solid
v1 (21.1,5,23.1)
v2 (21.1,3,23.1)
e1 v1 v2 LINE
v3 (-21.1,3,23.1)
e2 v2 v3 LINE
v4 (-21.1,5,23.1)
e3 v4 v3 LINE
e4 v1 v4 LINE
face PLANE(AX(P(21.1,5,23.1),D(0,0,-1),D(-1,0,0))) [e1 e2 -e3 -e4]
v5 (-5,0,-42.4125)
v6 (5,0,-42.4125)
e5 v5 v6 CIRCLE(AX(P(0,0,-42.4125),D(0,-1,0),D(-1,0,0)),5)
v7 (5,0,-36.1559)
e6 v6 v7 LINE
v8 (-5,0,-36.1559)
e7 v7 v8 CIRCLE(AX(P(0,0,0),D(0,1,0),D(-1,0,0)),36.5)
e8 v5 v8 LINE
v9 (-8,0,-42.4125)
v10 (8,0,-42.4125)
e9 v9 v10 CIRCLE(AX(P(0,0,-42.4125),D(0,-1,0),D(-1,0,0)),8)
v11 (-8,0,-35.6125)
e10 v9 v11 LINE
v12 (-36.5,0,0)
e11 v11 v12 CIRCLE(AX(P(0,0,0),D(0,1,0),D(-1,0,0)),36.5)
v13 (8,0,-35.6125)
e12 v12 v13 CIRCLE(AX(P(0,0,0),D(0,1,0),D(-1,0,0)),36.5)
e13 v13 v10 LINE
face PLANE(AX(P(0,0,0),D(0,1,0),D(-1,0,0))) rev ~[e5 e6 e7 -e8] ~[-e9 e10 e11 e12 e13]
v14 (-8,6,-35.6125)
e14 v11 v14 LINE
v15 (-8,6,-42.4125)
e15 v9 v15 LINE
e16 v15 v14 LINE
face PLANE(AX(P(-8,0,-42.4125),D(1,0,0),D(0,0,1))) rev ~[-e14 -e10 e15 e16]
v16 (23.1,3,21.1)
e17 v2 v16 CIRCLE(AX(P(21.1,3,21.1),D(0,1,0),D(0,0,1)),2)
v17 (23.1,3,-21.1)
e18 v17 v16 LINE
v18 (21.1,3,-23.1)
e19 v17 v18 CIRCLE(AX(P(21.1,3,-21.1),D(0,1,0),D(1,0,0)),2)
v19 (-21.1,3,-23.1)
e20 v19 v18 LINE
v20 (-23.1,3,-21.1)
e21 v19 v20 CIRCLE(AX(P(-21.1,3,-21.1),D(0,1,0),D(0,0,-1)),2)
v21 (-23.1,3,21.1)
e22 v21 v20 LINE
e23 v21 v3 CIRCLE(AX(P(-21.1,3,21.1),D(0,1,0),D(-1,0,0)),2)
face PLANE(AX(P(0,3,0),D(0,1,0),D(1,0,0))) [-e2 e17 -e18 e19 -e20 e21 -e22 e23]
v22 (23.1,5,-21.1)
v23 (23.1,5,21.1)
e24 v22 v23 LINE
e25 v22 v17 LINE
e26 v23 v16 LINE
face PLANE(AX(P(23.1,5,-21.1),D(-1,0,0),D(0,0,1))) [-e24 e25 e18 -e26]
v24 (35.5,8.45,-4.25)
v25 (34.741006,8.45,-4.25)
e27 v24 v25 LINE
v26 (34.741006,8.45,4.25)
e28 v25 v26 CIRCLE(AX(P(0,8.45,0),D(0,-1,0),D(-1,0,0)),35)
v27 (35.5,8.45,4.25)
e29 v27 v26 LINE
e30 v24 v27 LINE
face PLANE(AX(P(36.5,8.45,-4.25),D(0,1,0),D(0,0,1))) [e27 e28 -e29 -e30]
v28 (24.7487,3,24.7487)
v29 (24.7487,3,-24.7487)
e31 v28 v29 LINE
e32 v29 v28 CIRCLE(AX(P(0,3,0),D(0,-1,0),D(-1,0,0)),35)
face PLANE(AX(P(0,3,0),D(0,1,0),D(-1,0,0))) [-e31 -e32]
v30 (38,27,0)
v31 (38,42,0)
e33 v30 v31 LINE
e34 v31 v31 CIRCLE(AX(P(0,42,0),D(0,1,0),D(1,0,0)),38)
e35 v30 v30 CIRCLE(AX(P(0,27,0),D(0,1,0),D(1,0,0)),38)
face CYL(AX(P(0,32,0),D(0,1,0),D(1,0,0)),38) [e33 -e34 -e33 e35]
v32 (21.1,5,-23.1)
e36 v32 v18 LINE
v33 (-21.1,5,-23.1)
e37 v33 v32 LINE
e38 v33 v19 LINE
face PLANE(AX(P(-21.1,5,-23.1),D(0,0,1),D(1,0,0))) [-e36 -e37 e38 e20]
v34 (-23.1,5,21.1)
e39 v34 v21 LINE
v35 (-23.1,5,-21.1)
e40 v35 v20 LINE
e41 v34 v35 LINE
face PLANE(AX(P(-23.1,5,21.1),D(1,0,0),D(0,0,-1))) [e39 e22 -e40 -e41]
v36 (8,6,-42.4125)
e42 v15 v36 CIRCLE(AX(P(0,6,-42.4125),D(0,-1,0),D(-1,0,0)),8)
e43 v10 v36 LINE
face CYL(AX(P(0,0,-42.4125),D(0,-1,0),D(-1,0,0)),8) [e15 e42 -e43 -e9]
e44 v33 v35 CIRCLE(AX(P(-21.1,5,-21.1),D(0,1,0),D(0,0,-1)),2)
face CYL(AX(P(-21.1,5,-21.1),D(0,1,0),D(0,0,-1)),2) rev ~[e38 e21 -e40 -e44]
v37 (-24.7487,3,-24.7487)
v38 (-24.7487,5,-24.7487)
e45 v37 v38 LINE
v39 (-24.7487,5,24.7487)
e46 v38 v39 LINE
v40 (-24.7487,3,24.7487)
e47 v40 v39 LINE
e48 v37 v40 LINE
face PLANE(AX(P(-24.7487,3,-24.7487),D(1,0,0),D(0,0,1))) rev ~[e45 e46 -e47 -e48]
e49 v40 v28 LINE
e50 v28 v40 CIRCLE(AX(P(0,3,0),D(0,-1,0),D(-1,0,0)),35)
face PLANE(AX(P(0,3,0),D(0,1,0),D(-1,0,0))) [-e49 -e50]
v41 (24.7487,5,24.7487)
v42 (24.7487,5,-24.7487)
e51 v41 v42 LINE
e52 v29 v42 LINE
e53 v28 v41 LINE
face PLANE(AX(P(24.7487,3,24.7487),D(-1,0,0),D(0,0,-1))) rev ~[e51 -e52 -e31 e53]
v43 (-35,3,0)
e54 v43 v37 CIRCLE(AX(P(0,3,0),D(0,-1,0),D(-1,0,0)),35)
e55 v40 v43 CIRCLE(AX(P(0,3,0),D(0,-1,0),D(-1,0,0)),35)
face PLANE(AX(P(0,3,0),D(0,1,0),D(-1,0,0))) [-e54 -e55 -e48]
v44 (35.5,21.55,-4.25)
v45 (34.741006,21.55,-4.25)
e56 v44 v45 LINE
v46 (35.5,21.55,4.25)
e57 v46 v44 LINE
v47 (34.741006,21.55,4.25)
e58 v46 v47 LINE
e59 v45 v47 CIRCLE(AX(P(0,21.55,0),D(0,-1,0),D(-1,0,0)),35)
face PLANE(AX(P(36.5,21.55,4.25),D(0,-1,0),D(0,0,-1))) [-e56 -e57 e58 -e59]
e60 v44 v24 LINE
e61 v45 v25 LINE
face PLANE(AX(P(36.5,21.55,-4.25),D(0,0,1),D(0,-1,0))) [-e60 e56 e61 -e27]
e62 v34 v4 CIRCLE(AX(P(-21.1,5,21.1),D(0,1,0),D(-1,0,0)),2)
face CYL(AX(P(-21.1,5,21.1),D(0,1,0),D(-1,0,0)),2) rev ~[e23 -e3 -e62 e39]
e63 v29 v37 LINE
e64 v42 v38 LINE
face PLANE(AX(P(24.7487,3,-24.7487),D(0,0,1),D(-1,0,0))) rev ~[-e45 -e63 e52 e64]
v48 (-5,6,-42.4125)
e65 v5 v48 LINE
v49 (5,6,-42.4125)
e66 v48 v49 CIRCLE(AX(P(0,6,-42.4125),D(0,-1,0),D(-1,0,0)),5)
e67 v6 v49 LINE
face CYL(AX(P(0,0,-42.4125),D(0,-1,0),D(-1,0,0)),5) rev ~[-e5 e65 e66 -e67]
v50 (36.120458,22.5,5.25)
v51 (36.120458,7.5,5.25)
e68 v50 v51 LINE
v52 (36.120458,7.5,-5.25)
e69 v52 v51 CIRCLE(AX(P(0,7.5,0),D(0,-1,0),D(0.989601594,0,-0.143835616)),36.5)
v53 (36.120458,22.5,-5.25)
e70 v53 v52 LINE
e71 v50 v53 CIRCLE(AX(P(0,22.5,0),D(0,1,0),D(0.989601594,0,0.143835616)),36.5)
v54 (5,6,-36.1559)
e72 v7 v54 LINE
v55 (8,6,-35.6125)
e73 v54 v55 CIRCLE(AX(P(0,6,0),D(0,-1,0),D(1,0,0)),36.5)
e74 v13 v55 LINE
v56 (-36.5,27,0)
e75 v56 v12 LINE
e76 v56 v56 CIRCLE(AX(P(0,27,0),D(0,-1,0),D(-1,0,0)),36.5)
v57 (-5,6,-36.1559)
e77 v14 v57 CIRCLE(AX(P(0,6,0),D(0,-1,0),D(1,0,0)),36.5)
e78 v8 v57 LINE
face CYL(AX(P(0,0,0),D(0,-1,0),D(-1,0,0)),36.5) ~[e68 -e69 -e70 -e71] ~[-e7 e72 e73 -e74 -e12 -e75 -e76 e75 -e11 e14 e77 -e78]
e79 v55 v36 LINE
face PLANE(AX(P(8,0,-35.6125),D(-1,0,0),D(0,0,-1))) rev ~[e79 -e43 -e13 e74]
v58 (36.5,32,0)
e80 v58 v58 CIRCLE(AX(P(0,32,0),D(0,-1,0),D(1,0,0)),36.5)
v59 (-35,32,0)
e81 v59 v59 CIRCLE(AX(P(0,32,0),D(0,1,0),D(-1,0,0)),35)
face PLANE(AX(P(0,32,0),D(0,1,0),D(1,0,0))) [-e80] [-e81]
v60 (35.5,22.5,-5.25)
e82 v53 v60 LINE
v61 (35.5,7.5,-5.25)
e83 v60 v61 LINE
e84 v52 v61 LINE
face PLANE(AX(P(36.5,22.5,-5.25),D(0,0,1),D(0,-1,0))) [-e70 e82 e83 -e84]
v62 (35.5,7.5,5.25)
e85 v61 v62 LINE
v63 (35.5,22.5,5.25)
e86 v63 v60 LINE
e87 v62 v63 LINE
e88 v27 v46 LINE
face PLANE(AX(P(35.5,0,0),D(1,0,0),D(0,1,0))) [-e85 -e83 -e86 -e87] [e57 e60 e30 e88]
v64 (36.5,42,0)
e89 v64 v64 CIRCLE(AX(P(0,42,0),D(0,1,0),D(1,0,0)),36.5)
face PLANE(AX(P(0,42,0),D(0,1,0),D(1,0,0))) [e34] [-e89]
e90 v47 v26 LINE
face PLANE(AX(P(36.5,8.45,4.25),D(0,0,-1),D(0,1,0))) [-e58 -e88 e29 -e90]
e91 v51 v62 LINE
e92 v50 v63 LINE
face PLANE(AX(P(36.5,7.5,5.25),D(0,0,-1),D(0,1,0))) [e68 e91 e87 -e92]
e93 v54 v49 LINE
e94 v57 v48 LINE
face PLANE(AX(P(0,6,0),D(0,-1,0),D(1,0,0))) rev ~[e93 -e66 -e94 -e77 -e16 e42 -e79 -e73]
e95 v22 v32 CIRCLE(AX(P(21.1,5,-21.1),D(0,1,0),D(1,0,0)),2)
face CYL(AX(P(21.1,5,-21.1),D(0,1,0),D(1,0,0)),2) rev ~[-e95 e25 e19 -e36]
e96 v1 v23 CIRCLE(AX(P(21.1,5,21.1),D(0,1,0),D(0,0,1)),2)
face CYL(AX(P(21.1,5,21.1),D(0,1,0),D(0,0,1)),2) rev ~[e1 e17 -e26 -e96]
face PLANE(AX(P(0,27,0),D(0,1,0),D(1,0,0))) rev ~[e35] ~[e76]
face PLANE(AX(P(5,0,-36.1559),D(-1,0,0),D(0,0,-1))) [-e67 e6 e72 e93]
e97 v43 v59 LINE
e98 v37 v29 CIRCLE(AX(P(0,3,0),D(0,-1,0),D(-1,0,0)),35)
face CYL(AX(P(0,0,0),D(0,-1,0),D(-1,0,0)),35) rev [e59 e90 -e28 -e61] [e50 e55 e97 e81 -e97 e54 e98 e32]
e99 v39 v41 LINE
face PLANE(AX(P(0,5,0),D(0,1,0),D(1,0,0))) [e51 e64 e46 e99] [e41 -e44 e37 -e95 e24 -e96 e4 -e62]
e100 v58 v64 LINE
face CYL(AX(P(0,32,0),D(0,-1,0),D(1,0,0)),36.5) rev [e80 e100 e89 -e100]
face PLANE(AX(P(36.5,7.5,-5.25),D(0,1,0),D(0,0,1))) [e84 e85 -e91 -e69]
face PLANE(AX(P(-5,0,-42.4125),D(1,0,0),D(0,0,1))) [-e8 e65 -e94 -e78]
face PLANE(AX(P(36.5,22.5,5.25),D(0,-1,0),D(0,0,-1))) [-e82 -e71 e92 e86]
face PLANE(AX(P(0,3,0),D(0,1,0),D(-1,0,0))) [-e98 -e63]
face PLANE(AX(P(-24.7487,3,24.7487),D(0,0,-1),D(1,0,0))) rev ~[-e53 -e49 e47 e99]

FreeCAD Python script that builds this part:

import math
import FreeCAD as App
import Part
import Sketcher
from FreeCAD import Vector


def add_polygon(sketch, points):
    """Adds a closed chain of lines whose ends are joined by coincident constraints."""
    first, n = sketch.GeometryCount, len(points)
    for a, b in zip(points, points[1:] + points[:1]):
        sketch.addGeometry(Part.LineSegment(App.Vector(*a, 0), App.Vector(*b, 0)), False)
    for i in range(n):
        sketch.addConstraint(Sketcher.Constraint("Coincident", first + i, 2, first + (i + 1) % n, 1))

doc = App.newDocument("Part")
body = doc.addObject("PartDesign::Body", "Body")

sketch1 = doc.addObject("Sketcher::SketchObject", "Sketch")
body.addObject(sketch1)
sketch1.AttachmentSupport = (doc.XZ_Plane, [""])
sketch1.MapMode = "FlatFace"
sketch1.addGeometry(Part.Circle(Vector(0, 0, 0), Vector(0, 0, 1), 36), False)
sketch1.addConstraint(Sketcher.Constraint("Coincident", 0, 3, -1, 1))
sketch1.addConstraint(Sketcher.Constraint("Diameter", 0, 73.0))
pad1 = doc.addObject("PartDesign::Pad", "Pad")
body.addObject(pad1)
pad1.Profile = sketch1
pad1.Length = 3
pad1.Reversed = True

sketch2 = doc.addObject("Sketcher::SketchObject", "Sketch001")
body.addObject(sketch2)
sketch2.AttachmentSupport = (doc.XZ_Plane, [""])
sketch2.MapMode = "FlatFace"
sketch2.addGeometry(Part.Circle(Vector(0, 0, 0), Vector(0, 0, 1), 36), False)
sketch2.addGeometry(Part.Circle(Vector(0, 0, 0), Vector(0, 0, 1), 35), False)
sketch2.addConstraint(Sketcher.Constraint("Coincident", 0, 3, -1, 1))
sketch2.addConstraint(Sketcher.Constraint("Coincident", 1, 3, -1, 1))
sketch2.addConstraint(Sketcher.Constraint("Diameter", 0, 73.0))
sketch2.addConstraint(Sketcher.Constraint("Diameter", 1, 70.0))
pad2 = doc.addObject("PartDesign::Pad", "Pad001")
body.addObject(pad2)
pad2.Profile = sketch2
pad2.Length = 120
pad2.Reversed = True

sketch3 = doc.addObject("Sketcher::SketchObject", "Sketch002")
body.addObject(sketch3)
sketch3.AttachmentSupport = (doc.XZ_Plane, [""])
sketch3.MapMode = "FlatFace"
sketch3.AttachmentOffset = App.Placement(Vector(0, 0, -3), App.Rotation())
add_polygon(sketch3, [(25, 25), (25, -25), (-25, -25), (-25, 25)])
sketch3.addConstraint(Sketcher.Constraint("Vertical", 0))
sketch3.addConstraint(Sketcher.Constraint("Horizontal", 1))
sketch3.addConstraint(Sketcher.Constraint("Vertical", 2))
sketch3.addConstraint(Sketcher.Constraint("Horizontal", 3))
sketch3.addConstraint(Sketcher.Constraint("Symmetric", 0, 2, 2, 2, -1, 1))
sketch3.addConstraint(Sketcher.Constraint("Equal", 3, 0))
sketch3.addConstraint(Sketcher.Constraint("DistanceX", 1, 2, 1, 1, 49.4974))
pad3 = doc.addObject("PartDesign::Pad", "Pad002")
body.addObject(pad3)
pad3.Profile = sketch3
pad3.Length = 2
pad3.Reversed = True

sketch4 = doc.addObject("Sketcher::SketchObject", "Sketch003")
body.addObject(sketch4)
sketch4.AttachmentSupport = (doc.XZ_Plane, [""])
sketch4.MapMode = "FlatFace"
sketch4.AttachmentOffset = App.Placement(Vector(0, 0, -5), App.Rotation())
sketch4.addGeometry(Part.LineSegment(Vector(-21.1, 23.1, 0), Vector(21.1, 23.1, 0)), False)
sketch4.addGeometry(Part.ArcOfCircle(Part.Circle(Vector(21.1, 21.1, 0), Vector(0, 0, 1), 2), math.radians(0), math.radians(90)), False)
sketch4.addGeometry(Part.LineSegment(Vector(23.1, 21.1, 0), Vector(23.1, -21.1, 0)), False)
sketch4.addGeometry(Part.ArcOfCircle(Part.Circle(Vector(21.1, -21.1, 0), Vector(0, 0, 1), 2), math.radians(-90), math.radians(0)), False)
sketch4.addGeometry(Part.LineSegment(Vector(21.1, -23.1, 0), Vector(-21.1, -23.1, 0)), False)
sketch4.addGeometry(Part.ArcOfCircle(Part.Circle(Vector(-21.1, -21.1, 0), Vector(0, 0, 1), 2), math.radians(180), math.radians(270)), False)
sketch4.addGeometry(Part.LineSegment(Vector(-23.1, -21.1, 0), Vector(-23.1, 21.1, 0)), False)
sketch4.addGeometry(Part.ArcOfCircle(Part.Circle(Vector(-21.1, 21.1, 0), Vector(0, 0, 1), 2), math.radians(90), math.radians(180)), False)
sketch4.addConstraint(Sketcher.Constraint("Tangent", 0, 2, 1, 2))
sketch4.addConstraint(Sketcher.Constraint("Tangent", 1, 1, 2, 1))
sketch4.addConstraint(Sketcher.Constraint("Tangent", 2, 2, 3, 2))
sketch4.addConstraint(Sketcher.Constraint("Tangent", 3, 1, 4, 1))
sketch4.addConstraint(Sketcher.Constraint("Tangent", 4, 2, 5, 2))
sketch4.addConstraint(Sketcher.Constraint("Tangent", 5, 1, 6, 1))
sketch4.addConstraint(Sketcher.Constraint("Tangent", 6, 2, 7, 2))
sketch4.addConstraint(Sketcher.Constraint("Tangent", 7, 1, 0, 1))
sketch4.addConstraint(Sketcher.Constraint("Horizontal", 0))
sketch4.addConstraint(Sketcher.Constraint("Vertical", 2))
sketch4.addConstraint(Sketcher.Constraint("Horizontal", 4))
sketch4.addConstraint(Sketcher.Constraint("Vertical", 6))
sketch4.addConstraint(Sketcher.Constraint("Equal", 1, 3))
sketch4.addConstraint(Sketcher.Constraint("Equal", 3, 5))
sketch4.addConstraint(Sketcher.Constraint("Equal", 5, 7))
sketch4.addConstraint(Sketcher.Constraint("Symmetric", 1, 3, 5, 3, -1, 1))
sketch4.addConstraint(Sketcher.Constraint("Equal", 4, 2))
sketch4.addConstraint(Sketcher.Constraint("Radius", 1, 2.0))
sketch4.addConstraint(Sketcher.Constraint("DistanceX", 0, 1, 0, 2, 42.2))
pocket1 = doc.addObject("PartDesign::Pocket", "Pocket")
body.addObject(pocket1)
pocket1.Profile = sketch4
pocket1.Length = 2
pocket1.Reversed = True

sketch5 = doc.addObject("Sketcher::SketchObject", "Sketch004")
body.addObject(sketch5)
sketch5.AttachmentSupport = (doc.YZ_Plane, [""])
sketch5.MapMode = "FlatFace"
sketch5.addGeometry(Part.Circle(Vector(120, -27, 0), Vector(0, 0, 1), 9), False)
sketch5.addConstraint(Sketcher.Constraint("Diameter", 0, 18.0))
sketch5.addConstraint(Sketcher.Constraint("DistanceX", -1, 1, 0, 3, 120.0))
sketch5.addConstraint(Sketcher.Constraint("DistanceY", 0, 3, -1, 1, 27.0))
pocket2 = doc.addObject("PartDesign::Pocket", "Pocket001")
body.addObject(pocket2)
pocket2.Profile = sketch5
pocket2.Type = "ThroughAll"
pocket2.Reversed = True

sketch6 = doc.addObject("Sketcher::SketchObject", "Sketch005")
body.addObject(sketch6)
sketch6.AttachmentSupport = (doc.XZ_Plane, [""])
sketch6.MapMode = "FlatFace"
sketch6.addGeometry(Part.ArcOfCircle(Part.Circle(Vector(0, 0, 0), Vector(0, 0, 1), 36.5), math.radians(-82.13), math.radians(-77.34)), False)
sketch6.addGeometry(Part.LineSegment(Vector(5, -36.2, 0), Vector(5, -42.4, 0)), False)
sketch6.addGeometry(Part.ArcOfCircle(Part.Circle(Vector(0, -42.4, 0), Vector(0, 0, 1), 5), math.radians(180), math.radians(360)), False)
sketch6.addGeometry(Part.LineSegment(Vector(-5, -42.4, 0), Vector(-5, -36.2, 0)), False)
sketch6.addGeometry(Part.ArcOfCircle(Part.Circle(Vector(0, 0, 0), Vector(0, 0, 1), 36.5), math.radians(-102.66), math.radians(-97.87)), False)
sketch6.addGeometry(Part.LineSegment(Vector(-8, -35.6, 0), Vector(-8, -42.4, 0)), False)
sketch6.addGeometry(Part.ArcOfCircle(Part.Circle(Vector(0, -42.4, 0), Vector(0, 0, 1), 8), math.radians(180), math.radians(360)), False)
sketch6.addGeometry(Part.LineSegment(Vector(8, -42.4, 0), Vector(8, -35.6, 0)), False)
sketch6.addConstraint(Sketcher.Constraint("Coincident", 0, 1, 1, 1))
sketch6.addConstraint(Sketcher.Constraint("Tangent", 1, 2, 2, 2))
sketch6.addConstraint(Sketcher.Constraint("Tangent", 2, 1, 3, 1))
sketch6.addConstraint(Sketcher.Constraint("Coincident", 3, 2, 4, 2))
sketch6.addConstraint(Sketcher.Constraint("Coincident", 4, 1, 5, 1))
sketch6.addConstraint(Sketcher.Constraint("Tangent", 5, 2, 6, 1))
sketch6.addConstraint(Sketcher.Constraint("Tangent", 6, 2, 7, 1))
sketch6.addConstraint(Sketcher.Constraint("Coincident", 7, 2, 0, 2))
sketch6.addConstraint(Sketcher.Constraint("Vertical", 1))
sketch6.addConstraint(Sketcher.Constraint("Vertical", 3))
sketch6.addConstraint(Sketcher.Constraint("Vertical", 5))
sketch6.addConstraint(Sketcher.Constraint("Vertical", 7))
sketch6.addConstraint(Sketcher.Constraint("Coincident", 0, 3, -1, 1))
sketch6.addConstraint(Sketcher.Constraint("Coincident", 4, 3, -1, 1))
sketch6.addConstraint(Sketcher.Constraint("Coincident", 6, 3, 2, 3))
sketch6.addConstraint(Sketcher.Constraint("Equal", 0, 4))
sketch6.addConstraint(Sketcher.Constraint("PointOnObject", 2, 3, -2))
sketch6.addConstraint(Sketcher.Constraint("Radius", 2, 5.0))
sketch6.addConstraint(Sketcher.Constraint("Radius", 6, 8.0))
sketch6.addConstraint(Sketcher.Constraint("Radius", 0, 36.5))
sketch6.addConstraint(Sketcher.Constraint("DistanceY", 5, 2, 5, 1, 6.8))
pad4 = doc.addObject("PartDesign::Pad", "Pad003")
body.addObject(pad4)
pad4.Profile = sketch6
pad4.Length = 6
pad4.Reversed = True

sketch7 = doc.addObject("Sketcher::SketchObject", "Sketch006")
body.addObject(sketch7)
sketch7.AttachmentSupport = (doc.YZ_Plane, [""])
sketch7.MapMode = "FlatFace"
sketch7.AttachmentOffset = App.Placement(Vector(0, 0, 36.5), App.Rotation())
add_polygon(sketch7, [(22, 4), (8, 4), (8, -4), (22, -4)])
sketch7.addConstraint(Sketcher.Constraint("Horizontal", 0))
sketch7.addConstraint(Sketcher.Constraint("Vertical", 1))
sketch7.addConstraint(Sketcher.Constraint("Horizontal", 2))
sketch7.addConstraint(Sketcher.Constraint("Vertical", 3))
sketch7.addConstraint(Sketcher.Constraint("DistanceX", 0, 2, 0, 1, 13.1))
sketch7.addConstraint(Sketcher.Constraint("DistanceY", 1, 2, 1, 1, 8.5))
sketch7.addConstraint(Sketcher.Constraint("DistanceX", -1, 1, 0, 2, 8.45))
sketch7.addConstraint(Sketcher.Constraint("DistanceY", -1, 1, 0, 2, 4.25))
pocket3 = doc.addObject("PartDesign::Pocket", "Pocket002")
body.addObject(pocket3)
pocket3.Profile = sketch7
pocket3.Length = 3

sketch8 = doc.addObject("Sketcher::SketchObject", "Sketch007")
body.addObject(sketch8)
sketch8.AttachmentSupport = (doc.YZ_Plane, [""])
sketch8.MapMode = "FlatFace"
sketch8.AttachmentOffset = App.Placement(Vector(0, 0, 36.5), App.Rotation())
add_polygon(sketch8, [(22, 5), (8, 5), (8, -5), (22, -5)])
add_polygon(sketch8, [(8, -4), (8, 4), (22, 4), (22, -4)])
sketch8.addConstraint(Sketcher.Constraint("Horizontal", 0))
sketch8.addConstraint(Sketcher.Constraint("Vertical", 1))
sketch8.addConstraint(Sketcher.Constraint("Horizontal", 2))
sketch8.addConstraint(Sketcher.Constraint("Vertical", 3))
sketch8.addConstraint(Sketcher.Constraint("Vertical", 4))
sketch8.addConstraint(Sketcher.Constraint("Horizontal", 5))
sketch8.addConstraint(Sketcher.Constraint("Vertical", 6))
sketch8.addConstraint(Sketcher.Constraint("Horizontal", 7))
sketch8.addConstraint(Sketcher.Constraint("DistanceX", 0, 2, 0, 1, 15.0))
sketch8.addConstraint(Sketcher.Constraint("DistanceX", 5, 1, 5, 2, 13.1))
sketch8.addConstraint(Sketcher.Constraint("DistanceY", 1, 2, 1, 1, 10.5))
sketch8.addConstraint(Sketcher.Constraint("DistanceY", 4, 1, 4, 2, 8.5))
sketch8.addConstraint(Sketcher.Constraint("DistanceY", 4, 2, 0, 2, 1.0))
sketch8.addConstraint(Sketcher.Constraint("DistanceX", -1, 1, 0, 2, 7.5))
sketch8.addConstraint(Sketcher.Constraint("DistanceY", -1, 1, 0, 2, 5.25))
sketch8.addConstraint(Sketcher.Constraint("DistanceX", -1, 1, 4, 2, 8.45))
pocket4 = doc.addObject("PartDesign::Pocket", "Pocket003")
body.addObject(pocket4)
pocket4.Profile = sketch8
pocket4.Length = 1

sketch9 = doc.addObject("Sketcher::SketchObject", "Sketch008")
body.addObject(sketch9)
sketch9.AttachmentSupport = (doc.XZ_Plane, [""])
sketch9.MapMode = "FlatFace"
sketch9.AttachmentOffset = App.Placement(Vector(0, 0, -32), App.Rotation())
sketch9.addGeometry(Part.Circle(Vector(0, 0, 0), Vector(0, 0, 1), 35), False)
sketch9.addGeometry(Part.Circle(Vector(0, 0, 0), Vector(0, 0, 1), 20), False)
sketch9.addConstraint(Sketcher.Constraint("Coincident", 0, 3, -1, 1))
sketch9.addConstraint(Sketcher.Constraint("Coincident", 1, 3, -1, 1))
sketch9.addConstraint(Sketcher.Constraint("Diameter", 1, 40.0))
sketch9.addConstraint(Sketcher.Constraint("Diameter", 0, 70.0))
pad5 = doc.addObject("PartDesign::Pad", "Pad004")
body.addObject(pad5)
pad5.Profile = sketch9
pad5.Length = 3
pad5.Reversed = True

sketch10 = doc.addObject("Sketcher::SketchObject", "Sketch009")
body.addObject(sketch10)
sketch10.AttachmentSupport = (doc.XZ_Plane, [""])
sketch10.MapMode = "FlatFace"
sketch10.AttachmentOffset = App.Placement(Vector(0, 0, -32), App.Rotation())
sketch10.addGeometry(Part.Circle(Vector(0, 0, 0), Vector(0, 0, 1), 62), False)
sketch10.addConstraint(Sketcher.Constraint("Coincident", 0, 3, -1, 1))
sketch10.addConstraint(Sketcher.Constraint("Diameter", 0, 123.523))
pocket5 = doc.addObject("PartDesign::Pocket", "Pocket004")
body.addObject(pocket5)
pocket5.Profile = sketch10
pocket5.Type = "ThroughAll"

sketch11 = doc.addObject("Sketcher::SketchObject", "Sketch010")
body.addObject(sketch11)
sketch11.AttachmentSupport = (doc.XZ_Plane, [""])
sketch11.MapMode = "FlatFace"
sketch11.AttachmentOffset = App.Placement(Vector(0, 0, -32), App.Rotation())
sketch11.addGeometry(Part.Circle(Vector(0, 0, 0), Vector(0, 0, 1), 38), False)
sketch11.addGeometry(Part.Circle(Vector(0, 0, 0), Vector(0, 0, 1), 36), False)
sketch11.addConstraint(Sketcher.Constraint("Coincident", 0, 3, -1, 1))
sketch11.addConstraint(Sketcher.Constraint("Coincident", 1, 3, -1, 1))
sketch11.addConstraint(Sketcher.Constraint("Diameter", 0, 76.0))
sketch11.addConstraint(Sketcher.Constraint("Diameter", 1, 73.0))
pad6 = doc.addObject("PartDesign::Pad", "Pad005")
body.addObject(pad6)
pad6.Profile = sketch11
pad6.Type = "TwoLengths"
pad6.Length = 10
pad6.Length2 = 5
pad6.Reversed = True

doc.recompute()
